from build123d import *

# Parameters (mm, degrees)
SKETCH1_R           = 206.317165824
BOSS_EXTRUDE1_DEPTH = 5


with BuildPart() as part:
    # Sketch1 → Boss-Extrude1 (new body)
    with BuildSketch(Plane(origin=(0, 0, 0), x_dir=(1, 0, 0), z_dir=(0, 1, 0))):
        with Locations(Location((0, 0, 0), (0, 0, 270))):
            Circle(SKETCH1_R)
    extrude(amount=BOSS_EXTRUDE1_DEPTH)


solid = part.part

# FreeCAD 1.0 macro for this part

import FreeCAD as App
import Part
import Sketcher

V = App.Vector
Q = App.Units.Quantity

doc = App.newDocument("Part")
body = doc.addObject("PartDesign::Body", "Body")

# Sketch on XZ plane
sketch1 = body.newObject("Sketcher::SketchObject", "Sketch")
sketch1.AttachmentSupport = (doc.getObject("XZ_Plane"), [""])
sketch1.MapMode = "FlatFace"
sketch1.addGeometry(Part.Circle(V(0, 0, 0), V(0, 0, 1), 206), False)
sketch1.addConstraint([
    Sketcher.Constraint("Coincident", 0, 3, -1, 1),
    Sketcher.Constraint("Diameter", 0, Q("412.634332 mm")),
])
pad1 = body.newObject("PartDesign::Pad", "Pad")
pad1.Profile = sketch1
pad1.Length = 5
pad1.Reversed = True

doc.recompute()
